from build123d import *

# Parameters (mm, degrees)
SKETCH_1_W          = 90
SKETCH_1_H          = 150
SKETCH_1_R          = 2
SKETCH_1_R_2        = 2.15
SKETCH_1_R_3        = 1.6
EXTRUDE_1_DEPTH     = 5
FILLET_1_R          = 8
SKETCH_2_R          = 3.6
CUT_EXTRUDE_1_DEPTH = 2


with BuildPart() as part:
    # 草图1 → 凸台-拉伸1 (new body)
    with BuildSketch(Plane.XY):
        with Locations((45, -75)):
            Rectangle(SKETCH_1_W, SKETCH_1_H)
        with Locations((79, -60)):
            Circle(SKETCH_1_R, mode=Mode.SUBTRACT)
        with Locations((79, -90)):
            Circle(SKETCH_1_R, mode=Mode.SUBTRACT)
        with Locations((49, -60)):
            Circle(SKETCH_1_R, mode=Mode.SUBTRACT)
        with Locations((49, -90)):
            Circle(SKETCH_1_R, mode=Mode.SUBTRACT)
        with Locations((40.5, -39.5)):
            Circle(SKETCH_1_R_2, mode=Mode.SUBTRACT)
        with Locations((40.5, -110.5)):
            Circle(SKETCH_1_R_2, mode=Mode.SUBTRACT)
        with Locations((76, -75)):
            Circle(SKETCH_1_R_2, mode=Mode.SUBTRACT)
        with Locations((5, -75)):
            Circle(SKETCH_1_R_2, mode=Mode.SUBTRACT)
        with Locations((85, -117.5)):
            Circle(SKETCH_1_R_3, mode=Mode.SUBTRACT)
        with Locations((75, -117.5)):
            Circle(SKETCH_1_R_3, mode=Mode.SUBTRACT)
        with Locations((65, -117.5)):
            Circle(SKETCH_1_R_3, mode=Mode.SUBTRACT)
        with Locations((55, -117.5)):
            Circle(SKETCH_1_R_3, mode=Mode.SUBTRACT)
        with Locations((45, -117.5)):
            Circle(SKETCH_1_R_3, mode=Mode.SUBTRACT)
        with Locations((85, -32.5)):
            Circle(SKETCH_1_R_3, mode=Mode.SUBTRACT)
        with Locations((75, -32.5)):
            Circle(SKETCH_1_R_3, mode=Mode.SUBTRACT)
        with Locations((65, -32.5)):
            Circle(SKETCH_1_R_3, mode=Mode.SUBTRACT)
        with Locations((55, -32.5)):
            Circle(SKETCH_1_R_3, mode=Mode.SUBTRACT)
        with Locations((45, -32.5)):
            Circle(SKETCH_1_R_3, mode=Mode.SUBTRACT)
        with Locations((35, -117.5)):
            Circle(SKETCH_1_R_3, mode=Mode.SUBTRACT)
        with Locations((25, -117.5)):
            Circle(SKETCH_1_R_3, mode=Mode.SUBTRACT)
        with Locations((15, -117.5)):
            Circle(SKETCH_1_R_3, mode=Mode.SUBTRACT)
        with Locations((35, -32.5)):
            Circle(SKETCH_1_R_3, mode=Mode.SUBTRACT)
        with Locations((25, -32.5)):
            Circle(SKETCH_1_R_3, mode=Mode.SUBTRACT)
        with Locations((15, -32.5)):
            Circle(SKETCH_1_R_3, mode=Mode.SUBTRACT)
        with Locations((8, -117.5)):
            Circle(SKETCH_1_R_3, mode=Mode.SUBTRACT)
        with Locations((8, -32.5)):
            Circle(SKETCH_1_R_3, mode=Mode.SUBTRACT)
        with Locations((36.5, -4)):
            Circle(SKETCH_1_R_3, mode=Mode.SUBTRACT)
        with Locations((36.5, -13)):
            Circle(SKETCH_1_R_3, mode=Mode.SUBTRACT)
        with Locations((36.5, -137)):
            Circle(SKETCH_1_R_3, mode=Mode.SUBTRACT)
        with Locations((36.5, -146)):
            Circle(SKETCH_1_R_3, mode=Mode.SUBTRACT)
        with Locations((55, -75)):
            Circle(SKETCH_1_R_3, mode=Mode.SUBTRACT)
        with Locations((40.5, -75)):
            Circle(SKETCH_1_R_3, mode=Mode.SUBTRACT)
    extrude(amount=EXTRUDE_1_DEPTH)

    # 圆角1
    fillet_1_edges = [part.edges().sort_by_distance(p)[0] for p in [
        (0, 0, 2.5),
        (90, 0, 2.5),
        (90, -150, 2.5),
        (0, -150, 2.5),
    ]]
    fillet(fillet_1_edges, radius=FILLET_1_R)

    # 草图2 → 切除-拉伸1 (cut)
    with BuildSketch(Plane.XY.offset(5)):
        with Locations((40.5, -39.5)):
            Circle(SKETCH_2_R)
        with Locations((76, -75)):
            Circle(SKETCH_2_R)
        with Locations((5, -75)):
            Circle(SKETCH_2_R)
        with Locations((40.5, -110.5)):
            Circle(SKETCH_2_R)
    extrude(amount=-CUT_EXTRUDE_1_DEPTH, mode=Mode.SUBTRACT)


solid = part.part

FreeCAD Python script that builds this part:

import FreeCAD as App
import Part
import Sketcher
Q = App.Units.Quantity


def edges_at(feature, points):
    """Names of the edges that pass closest to the given points."""
    edges = feature.Shape.Edges
    near = lambda p: min(range(len(edges)), key=lambda i: edges[i].distToShape(Part.Vertex(*p))[0])
    return sorted({f"Edge{near(p) + 1}" for p in points})

doc = App.newDocument("Part")
body = doc.addObject("PartDesign::Body", "Body")

sketch1 = body.newObject("Sketcher::SketchObject", "Sketch")
sketch1.AttachmentSupport = (doc.getObject("XY_Plane"), [""])
sketch1.MapMode = "FlatFace"
sketch1.addGeometry(Part.LineSegment(App.Vector(0, 0, 0), App.Vector(0, -150, 0)), False)
sketch1.addGeometry(Part.LineSegment(App.Vector(0, -150, 0), App.Vector(90, -150, 0)), False)
sketch1.addGeometry(Part.LineSegment(App.Vector(90, -150, 0), App.Vector(90, 0, 0)), False)
sketch1.addGeometry(Part.LineSegment(App.Vector(90, 0, 0), App.Vector(0, 0, 0)), False)
sketch1.addGeometry(Part.Circle(App.Vector(8, -117.5, 0), App.Vector(0, 0, 1), 1.6), False)
sketch1.addGeometry(Part.Circle(App.Vector(15, -117.5, 0), App.Vector(0, 0, 1), 1.6), False)
sketch1.addGeometry(Part.Circle(App.Vector(36.5, -146, 0), App.Vector(0, 0, 1), 1.6), False)
sketch1.addGeometry(Part.Circle(App.Vector(36.5, -137, 0), App.Vector(0, 0, 1), 1.6), False)
sketch1.addGeometry(Part.Circle(App.Vector(25, -117.5, 0), App.Vector(0, 0, 1), 1.6), False)
sketch1.addGeometry(Part.Circle(App.Vector(35, -117.5, 0), App.Vector(0, 0, 1), 1.6), False)
sketch1.addGeometry(Part.Circle(App.Vector(40.5, -110.5, 0), App.Vector(0, 0, 1), 2.1), False)
sketch1.addGeometry(Part.Circle(App.Vector(45, -117.5, 0), App.Vector(0, 0, 1), 1.6), False)
sketch1.addGeometry(Part.Circle(App.Vector(55, -117.5, 0), App.Vector(0, 0, 1), 1.6), False)
sketch1.addGeometry(Part.Circle(App.Vector(65, -117.5, 0), App.Vector(0, 0, 1), 1.6), False)
sketch1.addGeometry(Part.Circle(App.Vector(75, -117.5, 0), App.Vector(0, 0, 1), 1.6), False)
sketch1.addGeometry(Part.Circle(App.Vector(85, -117.5, 0), App.Vector(0, 0, 1), 1.6), False)
sketch1.addGeometry(Part.Circle(App.Vector(49, -90, 0), App.Vector(0, 0, 1), 2), False)
sketch1.addGeometry(Part.Circle(App.Vector(79, -90, 0), App.Vector(0, 0, 1), 2), False)
sketch1.addGeometry(Part.Circle(App.Vector(5, -75, 0), App.Vector(0, 0, 1), 2.1), False)
sketch1.addGeometry(Part.Circle(App.Vector(40.5, -75, 0), App.Vector(0, 0, 1), 1.6), False)
sketch1.addGeometry(Part.Circle(App.Vector(40.5, -39.5, 0), App.Vector(0, 0, 1), 2.1), False)
sketch1.addGeometry(Part.Circle(App.Vector(8, -32.5, 0), App.Vector(0, 0, 1), 1.6), False)
sketch1.addGeometry(Part.Circle(App.Vector(15, -32.5, 0), App.Vector(0, 0, 1), 1.6), False)
sketch1.addGeometry(Part.Circle(App.Vector(25, -32.5, 0), App.Vector(0, 0, 1), 1.6), False)
sketch1.addGeometry(Part.Circle(App.Vector(35, -32.5, 0), App.Vector(0, 0, 1), 1.6), False)
sketch1.addGeometry(Part.Circle(App.Vector(36.5, -13, 0), App.Vector(0, 0, 1), 1.6), False)
sketch1.addGeometry(Part.Circle(App.Vector(36.5, -4, 0), App.Vector(0, 0, 1), 1.6), False)
sketch1.addGeometry(Part.Circle(App.Vector(55, -75, 0), App.Vector(0, 0, 1), 1.6), False)
sketch1.addGeometry(Part.Circle(App.Vector(49, -60, 0), App.Vector(0, 0, 1), 2), False)
sketch1.addGeometry(Part.Circle(App.Vector(76, -75, 0), App.Vector(0, 0, 1), 2.1), False)
sketch1.addGeometry(Part.Circle(App.Vector(79, -60, 0), App.Vector(0, 0, 1), 2), False)
sketch1.addGeometry(Part.Circle(App.Vector(45, -32.5, 0), App.Vector(0, 0, 1), 1.6), False)
sketch1.addGeometry(Part.Circle(App.Vector(55, -32.5, 0), App.Vector(0, 0, 1), 1.6), False)
sketch1.addGeometry(Part.Circle(App.Vector(65, -32.5, 0), App.Vector(0, 0, 1), 1.6), False)
sketch1.addGeometry(Part.Circle(App.Vector(75, -32.5, 0), App.Vector(0, 0, 1), 1.6), False)
sketch1.addGeometry(Part.Circle(App.Vector(85, -32.5, 0), App.Vector(0, 0, 1), 1.6), False)
sketch1.addConstraint(Sketcher.Constraint("Coincident", 0, 2, 1, 1))
sketch1.addConstraint(Sketcher.Constraint("Coincident", 1, 2, 2, 1))
sketch1.addConstraint(Sketcher.Constraint("Coincident", 2, 2, 3, 1))
sketch1.addConstraint(Sketcher.Constraint("Coincident", 3, 2, 0, 1))
sketch1.addConstraint(Sketcher.Constraint("Vertical", 0))
sketch1.addConstraint(Sketcher.Constraint("Horizontal", 1))
sketch1.addConstraint(Sketcher.Constraint("Vertical", 2))
sketch1.addConstraint(Sketcher.Constraint("Horizontal", 3))
sketch1.addConstraint(Sketcher.Constraint("Coincident", 3, 2, -1, 1))
sketch1.addConstraint(Sketcher.Constraint("Equal", 4, 5))
sketch1.addConstraint(Sketcher.Constraint("Equal", 5, 6))
sketch1.addConstraint(Sketcher.Constraint("Equal", 6, 7))
sketch1.addConstraint(Sketcher.Constraint("Equal", 7, 8))
sketch1.addConstraint(Sketcher.Constraint("Equal", 8, 9))
sketch1.addConstraint(Sketcher.Constraint("Equal", 9, 11))
sketch1.addConstraint(Sketcher.Constraint("Equal", 11, 12))
sketch1.addConstraint(Sketcher.Constraint("Equal", 12, 13))
sketch1.addConstraint(Sketcher.Constraint("Equal", 13, 14))
sketch1.addConstraint(Sketcher.Constraint("Equal", 14, 15))
sketch1.addConstraint(Sketcher.Constraint("Equal", 16, 17))
sketch1.addConstraint(Sketcher.Constraint("Equal", 10, 18))
sketch1.addConstraint(Sketcher.Constraint("Equal", 15, 19))
sketch1.addConstraint(Sketcher.Constraint("Equal", 18, 20))
sketch1.addConstraint(Sketcher.Constraint("Equal", 19, 21))
sketch1.addConstraint(Sketcher.Constraint("Equal", 21, 22))
sketch1.addConstraint(Sketcher.Constraint("Equal", 22, 23))
sketch1.addConstraint(Sketcher.Constraint("Equal", 23, 24))
sketch1.addConstraint(Sketcher.Constraint("Equal", 24, 25))
sketch1.addConstraint(Sketcher.Constraint("Equal", 25, 26))
sketch1.addConstraint(Sketcher.Constraint("Equal", 26, 27))
sketch1.addConstraint(Sketcher.Constraint("Equal", 17, 28))
sketch1.addConstraint(Sketcher.Constraint("Equal", 20, 29))
sketch1.addConstraint(Sketcher.Constraint("Equal", 28, 30))
sketch1.addConstraint(Sketcher.Constraint("Equal", 27, 31))
sketch1.addConstraint(Sketcher.Constraint("Equal", 31, 32))
sketch1.addConstraint(Sketcher.Constraint("Equal", 32, 33))
sketch1.addConstraint(Sketcher.Constraint("Equal", 33, 34))
sketch1.addConstraint(Sketcher.Constraint("Equal", 34, 35))
sketch1.addConstraint(Sketcher.Constraint("Horizontal", 4, 3, 5, 3))
sketch1.addConstraint(Sketcher.Constraint("Horizontal", 5, 3, 8, 3))
sketch1.addConstraint(Sketcher.Constraint("Horizontal", 8, 3, 9, 3))
sketch1.addConstraint(Sketcher.Constraint("Horizontal", 9, 3, 11, 3))
sketch1.addConstraint(Sketcher.Constraint("Horizontal", 11, 3, 12, 3))
sketch1.addConstraint(Sketcher.Constraint("Horizontal", 12, 3, 13, 3))
sketch1.addConstraint(Sketcher.Constraint("Horizontal", 13, 3, 14, 3))
sketch1.addConstraint(Sketcher.Constraint("Horizontal", 14, 3, 15, 3))
sketch1.addConstraint(Sketcher.Constraint("Horizontal", 16, 3, 17, 3))
sketch1.addConstraint(Sketcher.Constraint("Horizontal", 18, 3, 19, 3))
sketch1.addConstraint(Sketcher.Constraint("Horizontal", 21, 3, 22, 3))
sketch1.addConstraint(Sketcher.Constraint("Horizontal", 22, 3, 23, 3))
sketch1.addConstraint(Sketcher.Constraint("Horizontal", 23, 3, 24, 3))
sketch1.addConstraint(Sketcher.Constraint("Horizontal", 19, 3, 27, 3))
sketch1.addConstraint(Sketcher.Constraint("Horizontal", 27, 3, 29, 3))
sketch1.addConstraint(Sketcher.Constraint("Horizontal", 28, 3, 30, 3))
sketch1.addConstraint(Sketcher.Constraint("Horizontal", 24, 3, 31, 3))
sketch1.addConstraint(Sketcher.Constraint("Horizontal", 31, 3, 32, 3))
sketch1.addConstraint(Sketcher.Constraint("Horizontal", 32, 3, 33, 3))
sketch1.addConstraint(Sketcher.Constraint("Horizontal", 33, 3, 34, 3))
sketch1.addConstraint(Sketcher.Constraint("Horizontal", 34, 3, 35, 3))
sketch1.addConstraint(Sketcher.Constraint("Vertical", 6, 3, 7, 3))
sketch1.addConstraint(Sketcher.Constraint("Vertical", 10, 3, 19, 3))
sketch1.addConstraint(Sketcher.Constraint("Vertical", 19, 3, 20, 3))
sketch1.addConstraint(Sketcher.Constraint("Vertical", 4, 3, 21, 3))
sketch1.addConstraint(Sketcher.Constraint("Vertical", 5, 3, 22, 3))
sketch1.addConstraint(Sketcher.Constraint("Vertical", 8, 3, 23, 3))
sketch1.addConstraint(Sketcher.Constraint("Vertical", 9, 3, 24, 3))
sketch1.addConstraint(Sketcher.Constraint("Vertical", 7, 3, 25, 3))
sketch1.addConstraint(Sketcher.Constraint("Vertical", 25, 3, 26, 3))
sketch1.addConstraint(Sketcher.Constraint("Vertical", 12, 3, 27, 3))
sketch1.addConstraint(Sketcher.Constraint("Vertical", 16, 3, 28, 3))
sketch1.addConstraint(Sketcher.Constraint("Vertical", 17, 3, 30, 3))
sketch1.addConstraint(Sketcher.Constraint("Vertical", 11, 3, 31, 3))
sketch1.addConstraint(Sketcher.Constraint("Vertical", 27, 3, 32, 3))
sketch1.addConstraint(Sketcher.Constraint("Vertical", 13, 3, 33, 3))
sketch1.addConstraint(Sketcher.Constraint("Vertical", 14, 3, 34, 3))
sketch1.addConstraint(Sketcher.Constraint("Vertical", 15, 3, 35, 3))
sketch1.addConstraint(Sketcher.Constraint("Diameter", 16, Q("4 mm")))
sketch1.addConstraint(Sketcher.Constraint("Diameter", 4, Q("3.2 mm")))
sketch1.addConstraint(Sketcher.Constraint("Diameter", 10, Q("4.3 mm")))
sketch1.addConstraint(Sketcher.Constraint("DistanceX", 1, 1, 1, 2, Q("90 mm")))
sketch1.addConstraint(Sketcher.Constraint("DistanceY", 0, 2, 0, 1, Q("150 mm")))
sketch1.addConstraint(Sketcher.Constraint("DistanceX", -1, 1, 4, 3, Q("8 mm")))
sketch1.addConstraint(Sketcher.Constraint("DistanceX", -1, 1, 5, 3, Q("15 mm")))
sketch1.addConstraint(Sketcher.Constraint("DistanceY", 6, 3, -1, 1, Q("146 mm")))
sketch1.addConstraint(Sketcher.Constraint("DistanceY", 7, 3, -1, 1, Q("137 mm")))
sketch1.addConstraint(Sketcher.Constraint("DistanceX", -1, 1, 8, 3, Q("25 mm")))
sketch1.addConstraint(Sketcher.Constraint("DistanceX", -1, 1, 9, 3, Q("35 mm")))
sketch1.addConstraint(Sketcher.Constraint("DistanceX", -1, 1, 11, 3, Q("45 mm")))
sketch1.addConstraint(Sketcher.Constraint("DistanceX", -1, 1, 12, 3, Q("55 mm")))
sketch1.addConstraint(Sketcher.Constraint("DistanceX", -1, 1, 13, 3, Q("65 mm")))
sketch1.addConstraint(Sketcher.Constraint("DistanceX", -1, 1, 14, 3, Q("75 mm")))
sketch1.addConstraint(Sketcher.Constraint("DistanceX", -1, 1, 15, 3, Q("85 mm")))
sketch1.addConstraint(Sketcher.Constraint("DistanceX", -1, 1, 16, 3, Q("49 mm")))
sketch1.addConstraint(Sketcher.Constraint("DistanceY", 16, 3, -1, 1, Q("90 mm")))
sketch1.addConstraint(Sketcher.Constraint("DistanceX", -1, 1, 17, 3, Q("79 mm")))
sketch1.addConstraint(Sketcher.Constraint("DistanceX", -1, 1, 18, 3, Q("5 mm")))
sketch1.addConstraint(Sketcher.Constraint("DistanceY", 18, 3, -1, 1, Q("75 mm")))
sketch1.addConstraint(Sketcher.Constraint("DistanceY", 25, 3, -1, 1, Q("13 mm")))
sketch1.addConstraint(Sketcher.Constraint("DistanceY", 26, 3, -1, 1, Q("4 mm")))
sketch1.addConstraint(Sketcher.Constraint("DistanceY", 28, 3, -1, 1, Q("60 mm")))
sketch1.addConstraint(Sketcher.Constraint("DistanceX", -1, 1, 29, 3, Q("76 mm")))
sketch1.addConstraint(Sketcher.Constraint("DistanceY", 9, 3, 10, 3, Q("7 mm")))
sketch1.addConstraint(Sketcher.Constraint("DistanceX", 7, 3, 10, 3, Q("4 mm")))
sketch1.addConstraint(Sketcher.Constraint("DistanceY", 10, 3, 20, 3, Q("71 mm")))
sketch1.addConstraint(Sketcher.Constraint("DistanceY", 20, 3, 21, 3, Q("7 mm")))
sketch1.addConstraint(Sketcher.Constraint("DistanceY", 4, 3, -1, 1, Q("117.5 mm")))
sketch1.addConstraint(Sketcher.Constraint("DistanceX", -1, 1, 6, 3, Q("36.5 mm")))
pad1 = body.newObject("PartDesign::Pad", "Pad")
pad1.Profile = sketch1
pad1.Length = 5
doc.recompute()

fillet = body.newObject("PartDesign::Fillet", "Fillet")
fillet.Base = (pad1, edges_at(pad1, [
    (0, 0, 2.5),
    (90, 0, 2.5),
    (90, -150, 2.5),
    (0, -150, 2.5),
]))
fillet.Radius = 8

sketch2 = body.newObject("Sketcher::SketchObject", "Sketch001")
sketch2.AttachmentSupport = (doc.getObject("XY_Plane"), [""])
sketch2.MapMode = "FlatFace"
sketch2.AttachmentOffset = App.Placement(App.Vector(0, 0, 5), App.Rotation())
sketch2.addGeometry(Part.Circle(App.Vector(40.5, -39.5, 0), App.Vector(0, 0, 1), 3.6), False)
sketch2.addGeometry(Part.Circle(App.Vector(76, -75, 0), App.Vector(0, 0, 1), 3.6), False)
sketch2.addGeometry(Part.Circle(App.Vector(5, -75, 0), App.Vector(0, 0, 1), 3.6), False)
sketch2.addGeometry(Part.Circle(App.Vector(40.5, -110.5, 0), App.Vector(0, 0, 1), 3.6), False)
sketch2.addConstraint(Sketcher.Constraint("Equal", 0, 1))
sketch2.addConstraint(Sketcher.Constraint("Equal", 1, 2))
sketch2.addConstraint(Sketcher.Constraint("Equal", 2, 3))
sketch2.addConstraint(Sketcher.Constraint("Horizontal", 1, 3, 2, 3))
sketch2.addConstraint(Sketcher.Constraint("Vertical", 0, 3, 3, 3))
sketch2.addConstraint(Sketcher.Constraint("Diameter", 0, Q("7.2 mm")))
sketch2.addConstraint(Sketcher.Constraint("DistanceX", -1, 1, 1, 3, Q("76 mm")))
sketch2.addConstraint(Sketcher.Constraint("DistanceY", 1, 3, -1, 1, Q("75 mm")))
sketch2.addConstraint(Sketcher.Constraint("DistanceX", -1, 1, 2, 3, Q("5 mm")))
sketch2.addConstraint(Sketcher.Constraint("DistanceY", 3, 3, 0, 3, Q("71 mm")))
sketch2.addConstraint(Sketcher.Constraint("DistanceX", -1, 1, 0, 3, Q("40.5 mm")))
sketch2.addConstraint(Sketcher.Constraint("DistanceY", 0, 3, -1, 1, Q("39.5 mm")))
pocket1 = body.newObject("PartDesign::Pocket", "Pocket")
pocket1.Profile = sketch2
pocket1.Length = 2

doc.recompute()
